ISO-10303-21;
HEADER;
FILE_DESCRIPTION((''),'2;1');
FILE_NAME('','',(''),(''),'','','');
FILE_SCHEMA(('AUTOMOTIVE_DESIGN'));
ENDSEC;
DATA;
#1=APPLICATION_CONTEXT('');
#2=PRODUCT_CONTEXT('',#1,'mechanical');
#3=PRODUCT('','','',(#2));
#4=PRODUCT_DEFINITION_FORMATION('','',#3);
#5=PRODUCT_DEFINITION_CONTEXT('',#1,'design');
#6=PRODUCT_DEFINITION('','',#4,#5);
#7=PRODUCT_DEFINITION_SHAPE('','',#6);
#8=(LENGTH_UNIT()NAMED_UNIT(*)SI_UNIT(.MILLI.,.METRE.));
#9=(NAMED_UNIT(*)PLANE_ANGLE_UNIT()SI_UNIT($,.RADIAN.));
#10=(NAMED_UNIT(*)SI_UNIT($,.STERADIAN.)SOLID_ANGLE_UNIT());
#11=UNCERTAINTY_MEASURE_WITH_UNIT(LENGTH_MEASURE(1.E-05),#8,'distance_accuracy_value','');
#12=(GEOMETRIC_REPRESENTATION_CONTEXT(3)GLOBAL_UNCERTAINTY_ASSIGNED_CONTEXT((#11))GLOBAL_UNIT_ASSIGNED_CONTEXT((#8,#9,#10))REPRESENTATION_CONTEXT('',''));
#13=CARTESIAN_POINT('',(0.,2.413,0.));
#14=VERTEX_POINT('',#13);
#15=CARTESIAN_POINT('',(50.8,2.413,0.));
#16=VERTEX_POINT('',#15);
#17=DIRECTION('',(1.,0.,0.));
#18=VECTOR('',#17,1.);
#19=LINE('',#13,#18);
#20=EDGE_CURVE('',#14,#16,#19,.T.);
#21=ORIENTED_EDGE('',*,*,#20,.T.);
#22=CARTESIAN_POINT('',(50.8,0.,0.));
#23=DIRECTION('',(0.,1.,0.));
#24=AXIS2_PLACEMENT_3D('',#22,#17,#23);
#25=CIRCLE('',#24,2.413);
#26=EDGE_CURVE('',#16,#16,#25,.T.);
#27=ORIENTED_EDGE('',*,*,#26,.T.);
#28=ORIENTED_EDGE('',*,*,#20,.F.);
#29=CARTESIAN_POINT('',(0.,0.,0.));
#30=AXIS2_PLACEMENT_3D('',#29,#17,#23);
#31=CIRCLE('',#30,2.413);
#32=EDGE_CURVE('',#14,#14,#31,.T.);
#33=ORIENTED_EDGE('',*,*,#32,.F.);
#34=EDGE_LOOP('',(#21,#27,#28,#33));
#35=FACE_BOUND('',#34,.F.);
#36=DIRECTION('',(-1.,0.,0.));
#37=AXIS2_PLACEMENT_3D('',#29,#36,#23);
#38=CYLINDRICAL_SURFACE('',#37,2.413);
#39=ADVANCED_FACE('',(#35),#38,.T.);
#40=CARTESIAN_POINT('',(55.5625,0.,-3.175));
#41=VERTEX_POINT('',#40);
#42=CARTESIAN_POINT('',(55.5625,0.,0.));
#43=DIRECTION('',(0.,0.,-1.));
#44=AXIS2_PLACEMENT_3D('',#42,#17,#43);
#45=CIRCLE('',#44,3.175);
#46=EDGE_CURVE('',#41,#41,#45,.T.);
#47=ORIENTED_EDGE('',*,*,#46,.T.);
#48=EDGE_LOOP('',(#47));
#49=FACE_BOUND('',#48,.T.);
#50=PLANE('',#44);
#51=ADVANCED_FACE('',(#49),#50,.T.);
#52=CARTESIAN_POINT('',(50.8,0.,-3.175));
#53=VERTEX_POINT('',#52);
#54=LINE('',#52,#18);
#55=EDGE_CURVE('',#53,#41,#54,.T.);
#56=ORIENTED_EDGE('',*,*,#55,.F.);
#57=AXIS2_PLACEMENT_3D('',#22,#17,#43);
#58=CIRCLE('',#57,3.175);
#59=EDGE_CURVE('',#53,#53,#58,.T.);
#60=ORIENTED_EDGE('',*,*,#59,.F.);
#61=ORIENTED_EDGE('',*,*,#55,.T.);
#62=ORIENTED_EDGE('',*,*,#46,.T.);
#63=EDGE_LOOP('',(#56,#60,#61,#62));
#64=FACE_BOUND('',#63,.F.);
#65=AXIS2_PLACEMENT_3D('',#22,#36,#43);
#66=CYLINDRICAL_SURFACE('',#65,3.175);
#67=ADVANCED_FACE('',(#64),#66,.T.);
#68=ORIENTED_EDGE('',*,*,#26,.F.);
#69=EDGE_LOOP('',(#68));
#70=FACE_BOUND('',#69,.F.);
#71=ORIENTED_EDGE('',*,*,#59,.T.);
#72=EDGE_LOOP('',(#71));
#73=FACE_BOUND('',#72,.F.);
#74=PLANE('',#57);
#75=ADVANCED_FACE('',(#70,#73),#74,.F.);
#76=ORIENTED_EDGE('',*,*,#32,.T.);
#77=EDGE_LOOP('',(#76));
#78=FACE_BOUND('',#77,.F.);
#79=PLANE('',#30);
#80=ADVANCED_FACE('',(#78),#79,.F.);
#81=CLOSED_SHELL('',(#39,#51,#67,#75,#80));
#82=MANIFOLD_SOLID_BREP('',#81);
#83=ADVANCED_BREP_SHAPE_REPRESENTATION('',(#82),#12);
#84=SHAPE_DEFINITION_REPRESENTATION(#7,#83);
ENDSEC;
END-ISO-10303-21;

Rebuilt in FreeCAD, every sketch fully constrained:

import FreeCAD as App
import Part
import Sketcher
Q = App.Units.Quantity

doc = App.newDocument("Part")
body = doc.addObject("PartDesign::Body", "Body")

# Sketch on YZ plane
sketch1 = body.newObject("Sketcher::SketchObject", "Sketch")
sketch1.AttachmentSupport = (doc.getObject("YZ_Plane"), [""])
sketch1.MapMode = "FlatFace"
sketch1.addGeometry(Part.Circle(App.Vector(0, 0, 0), App.Vector(0, 0, 1), 2.4), False)
sketch1.addConstraint([
    Sketcher.Constraint("Coincident", 0, 3, -1, 1),
    Sketcher.Constraint("Diameter", 0, Q("0.19 in")),
])
pad1 = body.newObject("PartDesign::Pad", "Pad")
pad1.Profile = sketch1
pad1.Length = Q("2 in")

# Sketch on YZ plane
sketch2 = body.newObject("Sketcher::SketchObject", "Sketch001")
sketch2.AttachmentSupport = (doc.getObject("YZ_Plane"), [""])
sketch2.MapMode = "FlatFace"
sketch2.AttachmentOffset = App.Placement(App.Vector(0, 0, 2 * 25.4), App.Rotation())
sketch2.addGeometry(Part.Circle(App.Vector(0, 0, 0), App.Vector(0, 0, 1), 3.2), False)
sketch2.addConstraint([
    Sketcher.Constraint("Coincident", 0, 3, -1, 1),
    Sketcher.Constraint("Diameter", 0, Q("0.25 in")),
])
pad2 = body.newObject("PartDesign::Pad", "Pad001")
pad2.Profile = sketch2
pad2.Length = Q("0.1875 in")

doc.recompute()
